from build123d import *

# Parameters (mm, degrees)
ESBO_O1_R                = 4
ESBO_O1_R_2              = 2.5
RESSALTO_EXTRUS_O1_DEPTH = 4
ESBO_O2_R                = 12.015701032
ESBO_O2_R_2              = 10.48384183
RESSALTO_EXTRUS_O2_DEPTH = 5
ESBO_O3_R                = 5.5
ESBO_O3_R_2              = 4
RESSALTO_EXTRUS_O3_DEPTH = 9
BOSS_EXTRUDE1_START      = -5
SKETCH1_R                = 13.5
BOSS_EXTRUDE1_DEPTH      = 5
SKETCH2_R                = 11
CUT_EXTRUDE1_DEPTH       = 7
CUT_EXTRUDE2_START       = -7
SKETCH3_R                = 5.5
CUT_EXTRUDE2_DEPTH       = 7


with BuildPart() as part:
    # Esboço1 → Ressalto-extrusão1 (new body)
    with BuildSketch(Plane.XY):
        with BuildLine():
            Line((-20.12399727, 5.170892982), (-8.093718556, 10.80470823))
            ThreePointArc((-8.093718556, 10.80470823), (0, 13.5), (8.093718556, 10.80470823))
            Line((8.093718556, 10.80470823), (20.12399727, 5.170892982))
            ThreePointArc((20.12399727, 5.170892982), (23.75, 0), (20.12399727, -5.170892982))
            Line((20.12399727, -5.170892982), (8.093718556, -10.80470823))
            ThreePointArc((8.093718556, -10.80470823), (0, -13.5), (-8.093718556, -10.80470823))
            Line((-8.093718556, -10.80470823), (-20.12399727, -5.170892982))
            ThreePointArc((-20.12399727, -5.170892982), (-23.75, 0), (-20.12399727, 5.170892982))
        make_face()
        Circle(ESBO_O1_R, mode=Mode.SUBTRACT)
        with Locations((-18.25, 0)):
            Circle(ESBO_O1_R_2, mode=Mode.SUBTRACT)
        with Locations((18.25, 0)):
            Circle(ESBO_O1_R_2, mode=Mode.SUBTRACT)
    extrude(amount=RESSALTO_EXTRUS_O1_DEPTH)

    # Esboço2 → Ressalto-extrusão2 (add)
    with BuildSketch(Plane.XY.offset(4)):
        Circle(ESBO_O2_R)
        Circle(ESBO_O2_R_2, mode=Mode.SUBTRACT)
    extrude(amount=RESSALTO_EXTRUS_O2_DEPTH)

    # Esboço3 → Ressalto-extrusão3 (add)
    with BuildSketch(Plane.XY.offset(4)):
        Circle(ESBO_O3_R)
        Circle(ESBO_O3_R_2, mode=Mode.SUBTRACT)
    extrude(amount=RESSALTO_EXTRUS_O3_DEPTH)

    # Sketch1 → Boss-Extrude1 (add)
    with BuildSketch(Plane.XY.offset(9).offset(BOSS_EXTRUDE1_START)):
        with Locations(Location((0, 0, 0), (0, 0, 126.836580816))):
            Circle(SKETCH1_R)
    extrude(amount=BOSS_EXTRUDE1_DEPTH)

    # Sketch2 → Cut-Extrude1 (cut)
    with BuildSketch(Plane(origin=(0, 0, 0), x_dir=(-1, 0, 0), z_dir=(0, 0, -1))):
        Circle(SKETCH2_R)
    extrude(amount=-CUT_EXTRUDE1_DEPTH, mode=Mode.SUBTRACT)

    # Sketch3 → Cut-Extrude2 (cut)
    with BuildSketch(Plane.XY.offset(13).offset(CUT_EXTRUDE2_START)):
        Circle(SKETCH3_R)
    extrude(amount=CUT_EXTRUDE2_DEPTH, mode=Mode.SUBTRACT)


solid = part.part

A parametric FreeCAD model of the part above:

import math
import FreeCAD as App
import Part
import Sketcher
from FreeCAD import Vector
Q = App.Units.Quantity

doc = App.newDocument("Part")
body = doc.addObject("PartDesign::Body", "Body")

# Sketch on XY plane
sketch1 = doc.addObject("Sketcher::SketchObject", "Sketch")
body.addObject(sketch1)
sketch1.AttachmentSupport = (doc.XY_Plane, [""])
sketch1.MapMode = "FlatFace"
sketch1.addGeometry([
    Part.LineSegment(Vector(-8.1, 10.8, 0), Vector(-20.1, 5.2, 0)),  # 0
    Part.ArcOfCircle(Part.Circle(Vector(-18.2, 0, 0), Vector(0, 0, 1), 5.5), math.radians(110), math.radians(250)),  # 1
    Part.LineSegment(Vector(-20.1, -5.2, 0), Vector(-8.1, -10.8, 0)),  # 2
    Part.ArcOfCircle(Part.Circle(Vector(0, 0, 0), Vector(0, 0, 1), 13.5), math.radians(-127), math.radians(-53)),  # 3
    Part.LineSegment(Vector(8.1, -10.8, 0), Vector(20.1, -5.2, 0)),  # 4
    Part.ArcOfCircle(Part.Circle(Vector(18.2, 0, 0), Vector(0, 0, 1), 5.5), math.radians(-70), math.radians(70)),  # 5
    Part.LineSegment(Vector(20.1, 5.2, 0), Vector(8.1, 10.8, 0)),  # 6
    Part.ArcOfCircle(Part.Circle(Vector(0, 0, 0), Vector(0, 0, 1), 13.5), math.radians(53), math.radians(127)),  # 7
    Part.Circle(Vector(18.2, 0, 0), Vector(0, 0, 1), 2.5),  # 8
    Part.Circle(Vector(0, 0, 0), Vector(0, 0, 1), 4),  # 9
    Part.Circle(Vector(-18.2, 0, 0), Vector(0, 0, 1), 2.5),  # 10
], False)
sketch1.addConstraint([
    Sketcher.Constraint("Coincident", 0, 2, 1, 1),
    Sketcher.Constraint("Coincident", 1, 2, 2, 1),
    Sketcher.Constraint("Coincident", 2, 2, 3, 1),
    Sketcher.Constraint("Coincident", 3, 2, 4, 1),
    Sketcher.Constraint("Coincident", 4, 2, 5, 1),
    Sketcher.Constraint("Coincident", 5, 2, 6, 1),
    Sketcher.Constraint("Coincident", 6, 2, 7, 1),
    Sketcher.Constraint("Coincident", 7, 2, 0, 1),
    Sketcher.Constraint("Coincident", 3, 3, -1, 1),
    Sketcher.Constraint("Coincident", 7, 3, -1, 1),
    Sketcher.Constraint("Coincident", 9, 3, -1, 1),
    Sketcher.Constraint("Coincident", 8, 3, 5, 3),
    Sketcher.Constraint("Coincident", 10, 3, 1, 3),
    Sketcher.Constraint("Equal", 1, 5),
    Sketcher.Constraint("Equal", 3, 7),
    Sketcher.Constraint("Equal", 8, 10),
    Sketcher.Constraint("Symmetric", 1, 3, 5, 3, -1, 1),
    Sketcher.Constraint("Symmetric", 1, 2, 4, 2, -2),
    Sketcher.Constraint("Parallel", 0, 4),
    Sketcher.Constraint("Parallel", 2, 6),
    Sketcher.Constraint("Horizontal", 2, 2, 3, 2),
    Sketcher.Constraint("Horizontal", 0, 2, 5, 2),
    Sketcher.Constraint("Vertical", 0, 2, 1, 2),
    Sketcher.Constraint("Diameter", 8, Q("5 mm")),
    Sketcher.Constraint("Diameter", 9, Q("8 mm")),
    Sketcher.Constraint("Radius", 1, Q("5.5 mm")),
    Sketcher.Constraint("Radius", 3, Q("13.5 mm")),
    Sketcher.Constraint("DistanceX", 1, 3, 5, 3, Q("36.5 mm")),
    Sketcher.Constraint("DistanceY", 3, 2, 5, 2, Q("15.975601 mm")),
    Sketcher.Constraint("DistanceX", 2, 2, -1, 1, Q("8.093719 mm")),
])
pad1 = doc.addObject("PartDesign::Pad", "Pad")
body.addObject(pad1)
pad1.Profile = sketch1
pad1.Length = 4

# Sketch on XY plane
sketch2 = doc.addObject("Sketcher::SketchObject", "Sketch001")
body.addObject(sketch2)
sketch2.AttachmentSupport = (doc.XY_Plane, [""])
sketch2.MapMode = "FlatFace"
sketch2.AttachmentOffset = App.Placement(Vector(0, 0, 4), App.Rotation())
sketch2.addGeometry([
    Part.Circle(Vector(0, 0, 0), Vector(0, 0, 1), 12),
    Part.Circle(Vector(0, 0, 0), Vector(0, 0, 1), 10),
], False)
sketch2.addConstraint([
    Sketcher.Constraint("Coincident", 0, 3, -1, 1),
    Sketcher.Constraint("Coincident", 1, 3, -1, 1),
    Sketcher.Constraint("Diameter", 0, Q("24.031402 mm")),
    Sketcher.Constraint("Diameter", 1, Q("20.967684 mm")),
])
pad2 = doc.addObject("PartDesign::Pad", "Pad001")
body.addObject(pad2)
pad2.Profile = sketch2
pad2.Length = 5

# Sketch on XY plane
sketch3 = doc.addObject("Sketcher::SketchObject", "Sketch002")
body.addObject(sketch3)
sketch3.AttachmentSupport = (doc.XY_Plane, [""])
sketch3.MapMode = "FlatFace"
sketch3.AttachmentOffset = App.Placement(Vector(0, 0, 4), App.Rotation())
sketch3.addGeometry([
    Part.Circle(Vector(0, 0, 0), Vector(0, 0, 1), 5.5),
    Part.Circle(Vector(0, 0, 0), Vector(0, 0, 1), 4),
], False)
sketch3.addConstraint([
    Sketcher.Constraint("Coincident", 0, 3, -1, 1),
    Sketcher.Constraint("Coincident", 1, 3, -1, 1),
    Sketcher.Constraint("Diameter", 0, Q("11 mm")),
    Sketcher.Constraint("Diameter", 1, Q("8 mm")),
])
pad3 = doc.addObject("PartDesign::Pad", "Pad002")
body.addObject(pad3)
pad3.Profile = sketch3
pad3.Length = 9

# Sketch on XY plane
sketch4 = doc.addObject("Sketcher::SketchObject", "Sketch003")
body.addObject(sketch4)
sketch4.AttachmentSupport = (doc.XY_Plane, [""])
sketch4.MapMode = "FlatFace"
sketch4.AttachmentOffset = App.Placement(Vector(0, 0, 4), App.Rotation())
sketch4.addGeometry(Part.Circle(Vector(0, 0, 0), Vector(0, 0, 1), 14), False)
sketch4.addConstraint([
    Sketcher.Constraint("Coincident", 0, 3, -1, 1),
    Sketcher.Constraint("Diameter", 0, Q("27 mm")),
])
pad4 = doc.addObject("PartDesign::Pad", "Pad003")
body.addObject(pad4)
pad4.Profile = sketch4
pad4.Length = 5

# Sketch on XY plane
sketch5 = doc.addObject("Sketcher::SketchObject", "Sketch004")
body.addObject(sketch5)
sketch5.AttachmentSupport = (doc.XY_Plane, [""])
sketch5.MapMode = "FlatFace"
sketch5.addGeometry(Part.Circle(Vector(0, 0, 0), Vector(0, 0, 1), 11), False)
sketch5.addConstraint([
    Sketcher.Constraint("Coincident", 0, 3, -1, 1),
    Sketcher.Constraint("Diameter", 0, Q("22 mm")),
])
pocket1 = doc.addObject("PartDesign::Pocket", "Pocket")
body.addObject(pocket1)
pocket1.Profile = sketch5
pocket1.Length = 7
pocket1.Reversed = True

# Sketch on XY plane
sketch6 = doc.addObject("Sketcher::SketchObject", "Sketch005")
body.addObject(sketch6)
sketch6.AttachmentSupport = (doc.XY_Plane, [""])
sketch6.MapMode = "FlatFace"
sketch6.AttachmentOffset = App.Placement(Vector(0, 0, 6), App.Rotation())
sketch6.addGeometry(Part.Circle(Vector(0, 0, 0), Vector(0, 0, 1), 6), False)
sketch6.addConstraint([
    Sketcher.Constraint("Coincident", 0, 3, -1, 1),
    Sketcher.Constraint("Diameter", 0, Q("11 mm")),
])
pocket2 = doc.addObject("PartDesign::Pocket", "Pocket001")
body.addObject(pocket2)
pocket2.Profile = sketch6
pocket2.Length = 7
pocket2.Reversed = True

doc.recompute()
